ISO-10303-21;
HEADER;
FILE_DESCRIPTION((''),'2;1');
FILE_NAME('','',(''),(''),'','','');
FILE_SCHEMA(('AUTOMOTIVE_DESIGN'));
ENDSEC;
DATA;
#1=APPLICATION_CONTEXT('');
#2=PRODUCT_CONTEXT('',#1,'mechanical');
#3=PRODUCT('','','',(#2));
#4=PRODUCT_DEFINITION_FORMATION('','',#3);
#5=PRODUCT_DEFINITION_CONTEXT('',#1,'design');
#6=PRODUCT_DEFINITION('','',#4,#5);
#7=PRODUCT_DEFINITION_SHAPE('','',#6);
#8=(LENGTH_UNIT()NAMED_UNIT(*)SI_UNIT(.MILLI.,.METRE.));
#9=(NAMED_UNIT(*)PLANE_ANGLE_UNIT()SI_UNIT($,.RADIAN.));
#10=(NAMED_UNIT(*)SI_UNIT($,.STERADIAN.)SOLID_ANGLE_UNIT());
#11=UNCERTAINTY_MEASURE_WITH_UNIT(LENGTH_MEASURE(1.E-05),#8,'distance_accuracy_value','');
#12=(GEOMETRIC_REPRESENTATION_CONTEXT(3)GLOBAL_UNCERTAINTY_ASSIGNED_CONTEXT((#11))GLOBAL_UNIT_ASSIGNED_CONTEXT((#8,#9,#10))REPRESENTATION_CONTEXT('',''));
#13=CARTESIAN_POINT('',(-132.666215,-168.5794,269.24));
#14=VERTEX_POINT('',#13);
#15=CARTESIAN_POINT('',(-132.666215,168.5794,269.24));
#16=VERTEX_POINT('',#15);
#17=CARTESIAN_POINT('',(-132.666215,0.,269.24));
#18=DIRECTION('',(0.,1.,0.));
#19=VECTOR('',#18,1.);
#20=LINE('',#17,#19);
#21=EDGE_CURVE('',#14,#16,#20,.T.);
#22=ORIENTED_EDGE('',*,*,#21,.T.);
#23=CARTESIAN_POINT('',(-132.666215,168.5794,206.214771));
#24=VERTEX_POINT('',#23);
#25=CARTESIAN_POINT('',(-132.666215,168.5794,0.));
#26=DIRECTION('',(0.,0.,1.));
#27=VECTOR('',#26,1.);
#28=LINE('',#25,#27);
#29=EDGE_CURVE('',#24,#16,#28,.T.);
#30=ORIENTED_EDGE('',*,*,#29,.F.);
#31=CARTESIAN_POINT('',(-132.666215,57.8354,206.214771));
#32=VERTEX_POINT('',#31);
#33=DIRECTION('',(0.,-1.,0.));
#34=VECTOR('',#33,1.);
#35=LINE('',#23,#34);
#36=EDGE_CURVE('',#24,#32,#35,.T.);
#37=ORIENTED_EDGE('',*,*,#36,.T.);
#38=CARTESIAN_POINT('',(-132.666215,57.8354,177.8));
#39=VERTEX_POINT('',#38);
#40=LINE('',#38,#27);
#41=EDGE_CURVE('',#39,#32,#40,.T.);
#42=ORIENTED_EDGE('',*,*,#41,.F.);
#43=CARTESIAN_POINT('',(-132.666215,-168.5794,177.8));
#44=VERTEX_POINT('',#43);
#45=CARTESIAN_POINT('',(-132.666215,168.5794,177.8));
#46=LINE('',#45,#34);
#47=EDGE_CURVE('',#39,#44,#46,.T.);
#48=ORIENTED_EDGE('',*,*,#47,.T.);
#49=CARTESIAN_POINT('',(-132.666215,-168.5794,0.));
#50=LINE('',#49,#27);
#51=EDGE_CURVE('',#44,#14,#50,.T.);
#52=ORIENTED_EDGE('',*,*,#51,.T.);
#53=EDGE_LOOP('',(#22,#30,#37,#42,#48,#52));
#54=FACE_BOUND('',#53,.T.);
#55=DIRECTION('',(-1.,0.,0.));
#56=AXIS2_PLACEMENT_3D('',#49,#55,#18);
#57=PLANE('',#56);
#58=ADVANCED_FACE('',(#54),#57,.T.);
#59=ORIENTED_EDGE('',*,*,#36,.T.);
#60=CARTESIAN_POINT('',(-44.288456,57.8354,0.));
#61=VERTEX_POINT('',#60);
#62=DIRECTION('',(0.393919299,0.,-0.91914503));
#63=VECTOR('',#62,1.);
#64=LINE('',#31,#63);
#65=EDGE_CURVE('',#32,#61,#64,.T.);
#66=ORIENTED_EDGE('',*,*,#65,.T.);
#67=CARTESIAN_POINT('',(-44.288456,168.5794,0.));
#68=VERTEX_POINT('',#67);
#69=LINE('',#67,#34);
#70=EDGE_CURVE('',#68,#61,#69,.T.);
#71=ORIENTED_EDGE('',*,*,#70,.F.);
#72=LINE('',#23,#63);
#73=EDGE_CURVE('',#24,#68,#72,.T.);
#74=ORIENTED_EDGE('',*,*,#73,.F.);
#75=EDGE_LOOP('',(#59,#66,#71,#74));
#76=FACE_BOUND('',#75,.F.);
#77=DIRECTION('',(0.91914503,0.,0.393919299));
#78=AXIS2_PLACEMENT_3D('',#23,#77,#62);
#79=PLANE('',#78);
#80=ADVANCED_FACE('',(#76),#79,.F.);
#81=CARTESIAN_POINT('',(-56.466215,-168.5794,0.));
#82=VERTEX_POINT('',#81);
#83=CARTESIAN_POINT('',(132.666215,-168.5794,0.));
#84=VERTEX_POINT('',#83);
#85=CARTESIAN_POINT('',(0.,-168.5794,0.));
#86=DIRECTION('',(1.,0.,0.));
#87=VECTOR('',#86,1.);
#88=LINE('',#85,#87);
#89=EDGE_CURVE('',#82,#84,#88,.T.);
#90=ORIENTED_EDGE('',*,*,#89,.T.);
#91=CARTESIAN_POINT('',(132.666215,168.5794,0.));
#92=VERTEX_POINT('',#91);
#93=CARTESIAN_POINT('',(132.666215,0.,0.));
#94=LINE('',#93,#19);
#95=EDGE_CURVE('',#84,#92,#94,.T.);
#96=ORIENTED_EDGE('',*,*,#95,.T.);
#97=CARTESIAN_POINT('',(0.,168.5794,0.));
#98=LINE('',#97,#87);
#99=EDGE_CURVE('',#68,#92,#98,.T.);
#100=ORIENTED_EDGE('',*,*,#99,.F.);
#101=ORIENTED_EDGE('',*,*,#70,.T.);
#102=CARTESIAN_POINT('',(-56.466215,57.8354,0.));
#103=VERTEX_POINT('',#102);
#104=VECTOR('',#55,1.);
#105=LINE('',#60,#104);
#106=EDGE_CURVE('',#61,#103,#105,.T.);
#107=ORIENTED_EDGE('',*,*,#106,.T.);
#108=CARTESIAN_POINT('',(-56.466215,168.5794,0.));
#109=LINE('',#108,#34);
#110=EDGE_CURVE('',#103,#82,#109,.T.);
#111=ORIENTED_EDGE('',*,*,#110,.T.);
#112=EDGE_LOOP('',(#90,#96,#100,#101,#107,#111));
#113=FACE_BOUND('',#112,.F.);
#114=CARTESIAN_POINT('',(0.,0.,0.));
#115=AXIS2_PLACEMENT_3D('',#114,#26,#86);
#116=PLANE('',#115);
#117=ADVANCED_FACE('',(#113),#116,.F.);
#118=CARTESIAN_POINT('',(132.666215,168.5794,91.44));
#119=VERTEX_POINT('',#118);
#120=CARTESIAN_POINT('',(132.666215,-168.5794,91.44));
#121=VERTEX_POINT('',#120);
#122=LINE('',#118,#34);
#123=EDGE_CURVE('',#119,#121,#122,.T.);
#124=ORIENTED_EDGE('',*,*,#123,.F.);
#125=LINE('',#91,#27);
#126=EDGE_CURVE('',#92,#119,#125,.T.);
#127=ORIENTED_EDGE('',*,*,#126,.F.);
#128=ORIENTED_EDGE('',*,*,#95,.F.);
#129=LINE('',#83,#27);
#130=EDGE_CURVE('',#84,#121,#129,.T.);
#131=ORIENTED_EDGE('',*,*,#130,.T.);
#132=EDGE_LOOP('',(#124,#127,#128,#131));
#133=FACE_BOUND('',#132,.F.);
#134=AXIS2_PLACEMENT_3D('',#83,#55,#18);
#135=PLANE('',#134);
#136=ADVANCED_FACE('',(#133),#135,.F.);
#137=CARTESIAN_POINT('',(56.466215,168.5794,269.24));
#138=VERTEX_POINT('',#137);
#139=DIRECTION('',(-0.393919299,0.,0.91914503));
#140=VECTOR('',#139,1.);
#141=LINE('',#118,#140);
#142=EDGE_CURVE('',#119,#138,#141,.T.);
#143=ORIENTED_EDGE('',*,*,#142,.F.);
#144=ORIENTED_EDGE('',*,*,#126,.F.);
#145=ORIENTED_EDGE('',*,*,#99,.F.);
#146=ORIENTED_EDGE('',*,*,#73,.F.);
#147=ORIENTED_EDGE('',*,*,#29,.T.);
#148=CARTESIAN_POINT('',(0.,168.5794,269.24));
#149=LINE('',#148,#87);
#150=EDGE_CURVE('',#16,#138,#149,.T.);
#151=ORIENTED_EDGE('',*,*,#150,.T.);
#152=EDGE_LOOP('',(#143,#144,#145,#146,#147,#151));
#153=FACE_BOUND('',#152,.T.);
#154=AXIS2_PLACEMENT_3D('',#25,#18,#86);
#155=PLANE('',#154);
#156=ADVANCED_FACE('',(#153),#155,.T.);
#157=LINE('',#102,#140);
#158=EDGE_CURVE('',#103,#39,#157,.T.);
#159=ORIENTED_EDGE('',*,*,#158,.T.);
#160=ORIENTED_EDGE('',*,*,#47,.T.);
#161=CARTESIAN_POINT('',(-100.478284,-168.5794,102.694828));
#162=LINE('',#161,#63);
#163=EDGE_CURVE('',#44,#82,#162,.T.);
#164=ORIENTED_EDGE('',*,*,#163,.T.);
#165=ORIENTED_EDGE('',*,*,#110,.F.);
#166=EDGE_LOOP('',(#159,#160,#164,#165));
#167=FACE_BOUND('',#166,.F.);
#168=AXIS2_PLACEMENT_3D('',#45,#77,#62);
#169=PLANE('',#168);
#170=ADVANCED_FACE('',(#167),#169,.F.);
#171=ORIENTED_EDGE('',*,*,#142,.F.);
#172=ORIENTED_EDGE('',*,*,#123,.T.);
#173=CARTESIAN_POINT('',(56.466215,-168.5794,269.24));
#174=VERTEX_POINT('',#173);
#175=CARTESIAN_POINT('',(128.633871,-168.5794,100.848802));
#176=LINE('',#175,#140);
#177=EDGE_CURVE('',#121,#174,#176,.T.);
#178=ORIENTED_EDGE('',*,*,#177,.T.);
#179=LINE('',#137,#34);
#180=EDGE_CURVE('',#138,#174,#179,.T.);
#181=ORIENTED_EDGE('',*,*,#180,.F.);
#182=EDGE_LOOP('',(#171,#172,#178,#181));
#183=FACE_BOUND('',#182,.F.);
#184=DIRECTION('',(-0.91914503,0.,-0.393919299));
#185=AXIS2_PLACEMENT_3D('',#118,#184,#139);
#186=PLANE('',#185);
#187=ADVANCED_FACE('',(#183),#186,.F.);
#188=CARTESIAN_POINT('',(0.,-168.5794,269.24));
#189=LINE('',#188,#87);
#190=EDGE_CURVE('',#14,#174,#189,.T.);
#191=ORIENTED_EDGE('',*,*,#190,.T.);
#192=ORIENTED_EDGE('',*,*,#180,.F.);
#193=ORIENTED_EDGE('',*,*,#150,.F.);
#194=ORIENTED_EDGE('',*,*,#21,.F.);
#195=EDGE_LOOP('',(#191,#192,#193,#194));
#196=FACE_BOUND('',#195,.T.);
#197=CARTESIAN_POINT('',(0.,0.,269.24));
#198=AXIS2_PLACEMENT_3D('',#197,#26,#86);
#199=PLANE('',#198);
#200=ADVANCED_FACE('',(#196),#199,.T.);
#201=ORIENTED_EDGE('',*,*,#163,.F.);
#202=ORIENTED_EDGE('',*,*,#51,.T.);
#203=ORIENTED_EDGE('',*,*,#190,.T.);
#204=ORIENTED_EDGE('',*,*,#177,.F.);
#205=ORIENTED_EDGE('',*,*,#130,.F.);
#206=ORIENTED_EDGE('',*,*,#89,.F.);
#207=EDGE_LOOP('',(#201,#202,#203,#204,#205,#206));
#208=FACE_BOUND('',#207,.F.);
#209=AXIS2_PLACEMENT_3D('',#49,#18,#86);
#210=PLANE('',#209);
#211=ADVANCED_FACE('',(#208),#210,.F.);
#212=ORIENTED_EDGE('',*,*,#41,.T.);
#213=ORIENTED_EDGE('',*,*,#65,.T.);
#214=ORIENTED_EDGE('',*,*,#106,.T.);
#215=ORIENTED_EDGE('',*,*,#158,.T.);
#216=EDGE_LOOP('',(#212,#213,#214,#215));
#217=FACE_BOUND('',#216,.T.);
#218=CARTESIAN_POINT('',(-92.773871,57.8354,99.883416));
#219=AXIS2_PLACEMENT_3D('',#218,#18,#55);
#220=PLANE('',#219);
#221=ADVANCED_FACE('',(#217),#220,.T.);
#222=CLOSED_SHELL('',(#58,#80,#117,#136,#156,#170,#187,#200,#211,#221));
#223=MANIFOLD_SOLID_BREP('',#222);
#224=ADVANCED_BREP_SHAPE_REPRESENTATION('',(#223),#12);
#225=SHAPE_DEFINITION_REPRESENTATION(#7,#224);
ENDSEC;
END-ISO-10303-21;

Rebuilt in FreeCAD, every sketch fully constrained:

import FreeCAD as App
import Part
import Sketcher

V = App.Vector
Q = App.Units.Quantity

doc = App.newDocument("Part")
body = doc.addObject("PartDesign::Body", "Body")

# Sketch on XY plane
sketch1 = doc.addObject("Sketcher::SketchObject", "Sketch")
body.addObject(sketch1)
sketch1.AttachmentSupport = (doc.XY_Plane, [""])
sketch1.MapMode = "FlatFace"
sketch1.addGeometry(Part.LineSegment(V(-133, 169, 0), V(-133, -169, 0)), False)
sketch1.addGeometry(Part.LineSegment(V(-133, -169, 0), V(133, -169, 0)), False)
sketch1.addGeometry(Part.LineSegment(V(133, -169, 0), V(133, 169, 0)), False)
sketch1.addGeometry(Part.LineSegment(V(133, 169, 0), V(-133, 169, 0)), False)
sketch1.addConstraint(Sketcher.Constraint("Coincident", 0, 2, 1, 1))
sketch1.addConstraint(Sketcher.Constraint("Coincident", 1, 2, 2, 1))
sketch1.addConstraint(Sketcher.Constraint("Coincident", 2, 2, 3, 1))
sketch1.addConstraint(Sketcher.Constraint("Coincident", 3, 2, 0, 1))
sketch1.addConstraint(Sketcher.Constraint("Vertical", 0))
sketch1.addConstraint(Sketcher.Constraint("Horizontal", 1))
sketch1.addConstraint(Sketcher.Constraint("Vertical", 2))
sketch1.addConstraint(Sketcher.Constraint("Horizontal", 3))
sketch1.addConstraint(Sketcher.Constraint("Symmetric", 0, 2, 2, 2, -1, 1))
sketch1.addConstraint(Sketcher.Constraint("DistanceY", 0, 2, 0, 1, Q("337.1588 mm")))
sketch1.addConstraint(Sketcher.Constraint("DistanceX", 1, 1, 1, 2, Q("265.33243 mm")))
pad1 = doc.addObject("PartDesign::Pad", "Pad")
body.addObject(pad1)
pad1.Profile = sketch1
pad1.Length = Q("10.6 in")

# Sketch on XZ plane
sketch2 = doc.addObject("Sketcher::SketchObject", "Sketch001")
body.addObject(sketch2)
sketch2.AttachmentSupport = (doc.XZ_Plane, [""])
sketch2.MapMode = "FlatFace"
sketch2.AttachmentOffset = App.Placement(V(0, 0, -168.5794), App.Rotation())
sketch2.addGeometry(Part.LineSegment(V(133, 91, 0), V(56, 269, 0)), False)
sketch2.addGeometry(Part.LineSegment(V(56, 269, 0), V(133, 269, 0)), False)
sketch2.addGeometry(Part.LineSegment(V(133, 269, 0), V(133, 91, 0)), False)
sketch2.addGeometry(Part.LineSegment(V(-56, 0, 0), V(-133, 0, 0)), False)
sketch2.addGeometry(Part.LineSegment(V(-133, 0, 0), V(-133, 178, 0)), False)
sketch2.addGeometry(Part.LineSegment(V(-133, 178, 0), V(-56, 0, 0)), False)
sketch2.addConstraint(Sketcher.Constraint("Coincident", 0, 2, 1, 1))
sketch2.addConstraint(Sketcher.Constraint("Coincident", 1, 2, 2, 1))
sketch2.addConstraint(Sketcher.Constraint("Coincident", 2, 2, 0, 1))
sketch2.addConstraint(Sketcher.Constraint("Coincident", 3, 2, 4, 1))
sketch2.addConstraint(Sketcher.Constraint("Coincident", 4, 2, 5, 1))
sketch2.addConstraint(Sketcher.Constraint("Coincident", 5, 2, 3, 1))
sketch2.addConstraint(Sketcher.Constraint("Horizontal", 1))
sketch2.addConstraint(Sketcher.Constraint("Vertical", 2))
sketch2.addConstraint(Sketcher.Constraint("Horizontal", 3))
sketch2.addConstraint(Sketcher.Constraint("Vertical", 4))
sketch2.addConstraint(Sketcher.Constraint("PointOnObject", 3, 2, -1))
sketch2.addConstraint(Sketcher.Constraint("Parallel", 0, 5))
sketch2.addConstraint(Sketcher.Constraint("Equal", 1, 3))
sketch2.addConstraint(Sketcher.Constraint("DistanceX", 1, 1, 1, 2, Q("3 in")))
sketch2.addConstraint(Sketcher.Constraint("DistanceY", 2, 2, 2, 1, Q("7 in")))
sketch2.addConstraint(Sketcher.Constraint("DistanceY", -1, 1, 0, 2, Q("10.6 in")))
sketch2.addConstraint(Sketcher.Constraint("DistanceX", 3, 2, 2, 2, Q("265.33243 mm")))
sketch2.addConstraint(Sketcher.Constraint("DistanceX", -1, 1, 0, 2, Q("56.466215 mm")))
pocket1 = doc.addObject("PartDesign::Pocket", "Pocket")
body.addObject(pocket1)
pocket1.Profile = sketch2
pocket1.Length = Q("13.65 in")
pocket1.Reversed = True

# Sketch on XZ plane
sketch3 = doc.addObject("Sketcher::SketchObject", "Sketch002")
body.addObject(sketch3)
sketch3.AttachmentSupport = (doc.XZ_Plane, [""])
sketch3.MapMode = "FlatFace"
sketch3.AttachmentOffset = App.Placement(V(0, 0, -168.5794), App.Rotation())
sketch3.addGeometry(Part.LineSegment(V(-133, 178, 0), V(-133, 206, 0)), False)
sketch3.addGeometry(Part.LineSegment(V(-133, 206, 0), V(-44, 0, 0)), False)
sketch3.addGeometry(Part.LineSegment(V(-44, 0, 0), V(-56, 0, 0)), False)
sketch3.addGeometry(Part.LineSegment(V(-56, 0, 0), V(-133, 178, 0)), False)
sketch3.addConstraint(Sketcher.Constraint("Coincident", 0, 2, 1, 1))
sketch3.addConstraint(Sketcher.Constraint("Coincident", 1, 2, 2, 1))
sketch3.addConstraint(Sketcher.Constraint("Coincident", 2, 2, 3, 1))
sketch3.addConstraint(Sketcher.Constraint("Coincident", 3, 2, 0, 1))
sketch3.addConstraint(Sketcher.Constraint("Vertical", 0))
sketch3.addConstraint(Sketcher.Constraint("Horizontal", 2))
sketch3.addConstraint(Sketcher.Constraint("PointOnObject", 1, 2, -1))
sketch3.addConstraint(Sketcher.Constraint("Parallel", 1, 3))
sketch3.addConstraint(Sketcher.Constraint("DistanceY", -1, 1, 3, 2, Q("7 in")))
sketch3.addConstraint(Sketcher.Constraint("DistanceX", 0, 2, 2, 2, Q("3 in")))
sketch3.addConstraint(Sketcher.Constraint("DistanceX", 2, 2, 2, 1, Q("12.177759 mm")))
sketch3.addConstraint(Sketcher.Constraint("DistanceX", 0, 2, -1, 1, Q("132.666215 mm")))
pocket2 = doc.addObject("PartDesign::Pocket", "Pocket001")
body.addObject(pocket2)
pocket2.Profile = sketch3
pocket2.Length = Q("4.36 in")
pocket2.Reversed = True

doc.recompute()
